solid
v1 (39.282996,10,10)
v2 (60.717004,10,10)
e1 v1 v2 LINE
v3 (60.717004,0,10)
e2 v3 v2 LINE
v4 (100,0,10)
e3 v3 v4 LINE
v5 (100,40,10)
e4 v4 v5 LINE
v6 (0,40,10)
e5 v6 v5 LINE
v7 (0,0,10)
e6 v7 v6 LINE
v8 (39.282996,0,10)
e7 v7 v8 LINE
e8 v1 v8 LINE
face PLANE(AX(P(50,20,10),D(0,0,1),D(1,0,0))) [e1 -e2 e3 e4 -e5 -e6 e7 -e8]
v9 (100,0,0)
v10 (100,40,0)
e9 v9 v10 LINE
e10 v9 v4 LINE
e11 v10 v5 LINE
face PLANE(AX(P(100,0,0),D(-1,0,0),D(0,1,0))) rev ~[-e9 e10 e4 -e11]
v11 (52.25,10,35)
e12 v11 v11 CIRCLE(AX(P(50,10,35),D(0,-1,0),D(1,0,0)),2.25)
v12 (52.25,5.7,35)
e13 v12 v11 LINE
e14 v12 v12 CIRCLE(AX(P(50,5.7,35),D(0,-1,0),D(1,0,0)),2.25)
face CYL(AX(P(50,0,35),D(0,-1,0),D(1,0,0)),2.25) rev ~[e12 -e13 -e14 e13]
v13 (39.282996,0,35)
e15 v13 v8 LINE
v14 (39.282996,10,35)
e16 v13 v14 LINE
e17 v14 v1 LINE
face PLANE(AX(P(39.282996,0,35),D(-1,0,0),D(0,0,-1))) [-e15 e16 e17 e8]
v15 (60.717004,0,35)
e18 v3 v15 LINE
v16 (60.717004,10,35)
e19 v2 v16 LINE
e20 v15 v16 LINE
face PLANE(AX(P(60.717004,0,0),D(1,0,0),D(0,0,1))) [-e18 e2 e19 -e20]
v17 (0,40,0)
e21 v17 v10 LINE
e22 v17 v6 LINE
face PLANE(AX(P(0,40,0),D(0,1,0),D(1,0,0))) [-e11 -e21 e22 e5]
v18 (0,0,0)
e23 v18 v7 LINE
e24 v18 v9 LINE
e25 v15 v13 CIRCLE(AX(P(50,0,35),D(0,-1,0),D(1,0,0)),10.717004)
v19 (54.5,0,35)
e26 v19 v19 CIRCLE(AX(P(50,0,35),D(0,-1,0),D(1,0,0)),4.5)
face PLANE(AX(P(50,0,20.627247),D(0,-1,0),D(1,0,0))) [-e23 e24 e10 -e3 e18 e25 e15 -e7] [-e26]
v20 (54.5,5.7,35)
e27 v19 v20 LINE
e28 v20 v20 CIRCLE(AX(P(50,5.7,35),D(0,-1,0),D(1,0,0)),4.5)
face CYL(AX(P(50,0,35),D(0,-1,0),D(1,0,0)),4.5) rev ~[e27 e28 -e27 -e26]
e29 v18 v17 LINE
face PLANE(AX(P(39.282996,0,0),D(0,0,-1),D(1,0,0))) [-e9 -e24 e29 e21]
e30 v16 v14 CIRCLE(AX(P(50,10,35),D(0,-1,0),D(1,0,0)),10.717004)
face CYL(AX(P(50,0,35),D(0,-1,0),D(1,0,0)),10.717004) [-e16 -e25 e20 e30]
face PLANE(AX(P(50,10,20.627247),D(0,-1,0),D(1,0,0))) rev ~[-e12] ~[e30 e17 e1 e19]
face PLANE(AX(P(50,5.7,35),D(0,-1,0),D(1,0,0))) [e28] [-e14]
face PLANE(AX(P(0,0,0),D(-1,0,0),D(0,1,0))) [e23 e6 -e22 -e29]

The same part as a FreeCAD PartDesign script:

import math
import FreeCAD as App
import Part
import Sketcher
Q = App.Units.Quantity

doc = App.newDocument("Part")
params = doc.addObject("Spreadsheet::Sheet", "Params")
for row, (alias, value) in enumerate([
    ("sketch1_width", "100 mm"),
    ("sketch1_height", "40 mm"),
    ("pad1_length", "10 mm"),
    ("sketch2_height", "35 mm"),
    ("pad2_length", "10 mm"),
    ("sketch3_diameter", "4.5 mm"),
    ("sketch4_diameter", "9 mm"),
    ("pocket2_length", "5.7 mm"),
], start=1):
    params.set(f"A{row}", alias)
    params.set(f"B{row}", "=" + value)
    params.setAlias(f"B{row}", alias)

body = doc.addObject("PartDesign::Body", "Body")

sketch1 = body.newObject("Sketcher::SketchObject", "Sketch")
sketch1.AttachmentSupport = (doc.getObject("XY_Plane"), [""])
sketch1.MapMode = "FlatFace"
sketch1.addGeometry([
    Part.LineSegment(App.Vector(0, 40, 0), App.Vector(0, 0, 0)),
    Part.LineSegment(App.Vector(0, 0, 0), App.Vector(100, 0, 0)),
    Part.LineSegment(App.Vector(100, 0, 0), App.Vector(100, 40, 0)),
    Part.LineSegment(App.Vector(100, 40, 0), App.Vector(0, 40, 0)),
], False)
sketch1.addConstraint([
    Sketcher.Constraint("Coincident", 0, 2, 1, 1),
    Sketcher.Constraint("Coincident", 1, 2, 2, 1),
    Sketcher.Constraint("Coincident", 2, 2, 3, 1),
    Sketcher.Constraint("Coincident", 3, 2, 0, 1),
    Sketcher.Constraint("Vertical", 0),
    Sketcher.Constraint("Horizontal", 1),
    Sketcher.Constraint("Vertical", 2),
    Sketcher.Constraint("Horizontal", 3),
    Sketcher.Constraint("Coincident", 0, 2, -1, 1),
    Sketcher.Constraint("DistanceX", 1, 1, 1, 2, Q("100 mm")),
    Sketcher.Constraint("DistanceY", 0, 2, 0, 1, Q("40 mm")),
])
sketch1.setExpression("Constraints[9]", "Params.sketch1_width")
sketch1.setExpression("Constraints[10]", "Params.sketch1_height")
pad1 = body.newObject("PartDesign::Pad", "Pad")
pad1.Profile = sketch1
pad1.setExpression("Length", "Params.pad1_length")

sketch2 = body.newObject("Sketcher::SketchObject", "Sketch001")
sketch2.AttachmentSupport = (doc.getObject("XZ_Plane"), [""])
sketch2.MapMode = "FlatFace"
sketch2.addGeometry([
    Part.LineSegment(App.Vector(39, 35, 0), App.Vector(39, 0, 0)),
    Part.LineSegment(App.Vector(39, 0, 0), App.Vector(61, 0, 0)),
    Part.LineSegment(App.Vector(61, 0, 0), App.Vector(61, 35, 0)),
    Part.ArcOfCircle(Part.Circle(App.Vector(50, 35, 0), App.Vector(0, 0, 1), 11), math.radians(0), math.radians(180)),
], False)
sketch2.addConstraint([
    Sketcher.Constraint("Coincident", 0, 2, 1, 1),
    Sketcher.Constraint("Coincident", 1, 2, 2, 1),
    Sketcher.Constraint("Tangent", 2, 2, 3, 1),
    Sketcher.Constraint("Tangent", 3, 2, 0, 1),
    Sketcher.Constraint("Vertical", 0),
    Sketcher.Constraint("Horizontal", 1),
    Sketcher.Constraint("Vertical", 2),
    Sketcher.Constraint("PointOnObject", 0, 2, -1),
    Sketcher.Constraint("DistanceY", 0, 2, 0, 1, Q("35 mm")),
    Sketcher.Constraint("DistanceX", -1, 1, 3, 3, Q("50 mm")),
    Sketcher.Constraint("Radius", 3, Q("10.717004 mm")),
])
sketch2.setExpression("Constraints[8]", "Params.sketch2_height")
pad2 = body.newObject("PartDesign::Pad", "Pad001")
pad2.Profile = sketch2
pad2.setExpression("Length", "Params.pad2_length")
pad2.Reversed = True

sketch3 = body.newObject("Sketcher::SketchObject", "Sketch002")
sketch3.AttachmentSupport = (doc.getObject("XZ_Plane"), [""])
sketch3.MapMode = "FlatFace"
sketch3.addGeometry(Part.Circle(App.Vector(50, 35, 0), App.Vector(0, 0, 1), 2.2), False)
sketch3.addConstraint([
    Sketcher.Constraint("Diameter", 0, Q("4.5 mm")),
    Sketcher.Constraint("DistanceX", -1, 1, 0, 3, Q("50 mm")),
    Sketcher.Constraint("DistanceY", -1, 1, 0, 3, Q("35 mm")),
])
sketch3.setExpression("Constraints[0]", "Params.sketch3_diameter")
pocket1 = body.newObject("PartDesign::Pocket", "Pocket")
pocket1.Profile = sketch3
pocket1.Type = "ThroughAll"

sketch4 = body.newObject("Sketcher::SketchObject", "Sketch003")
sketch4.AttachmentSupport = (doc.getObject("XZ_Plane"), [""])
sketch4.MapMode = "FlatFace"
sketch4.addGeometry(Part.Circle(App.Vector(50, 35, 0), App.Vector(0, 0, 1), 4.5), False)
sketch4.addConstraint([
    Sketcher.Constraint("Diameter", 0, Q("9 mm")),
    Sketcher.Constraint("DistanceX", -1, 1, 0, 3, Q("50 mm")),
    Sketcher.Constraint("DistanceY", -1, 1, 0, 3, Q("35 mm")),
])
sketch4.setExpression("Constraints[0]", "Params.sketch4_diameter")
pocket2 = body.newObject("PartDesign::Pocket", "Pocket001")
pocket2.Profile = sketch4
pocket2.setExpression("Length", "Params.pocket2_length")

doc.recompute()
